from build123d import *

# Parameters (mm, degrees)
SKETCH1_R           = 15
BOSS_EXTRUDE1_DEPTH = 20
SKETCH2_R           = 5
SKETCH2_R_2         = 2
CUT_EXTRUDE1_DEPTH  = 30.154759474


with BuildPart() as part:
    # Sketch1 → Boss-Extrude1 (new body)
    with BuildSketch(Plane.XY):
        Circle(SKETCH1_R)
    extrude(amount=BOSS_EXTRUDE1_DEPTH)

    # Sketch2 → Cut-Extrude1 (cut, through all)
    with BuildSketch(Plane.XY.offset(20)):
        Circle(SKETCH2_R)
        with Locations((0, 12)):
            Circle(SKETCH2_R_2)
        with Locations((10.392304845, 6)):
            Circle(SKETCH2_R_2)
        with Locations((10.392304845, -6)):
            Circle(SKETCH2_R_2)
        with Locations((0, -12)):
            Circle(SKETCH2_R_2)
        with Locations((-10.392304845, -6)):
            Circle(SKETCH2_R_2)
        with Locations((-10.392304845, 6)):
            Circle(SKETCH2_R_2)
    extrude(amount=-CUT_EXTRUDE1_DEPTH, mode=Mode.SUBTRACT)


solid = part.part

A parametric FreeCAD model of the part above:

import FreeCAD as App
import Part
import Sketcher

V = App.Vector

doc = App.newDocument("Part")
body = doc.addObject("PartDesign::Body", "Body")

# Sketch on XY plane
sketch1 = body.newObject("Sketcher::SketchObject", "Sketch")
sketch1.AttachmentSupport = (doc.getObject("XY_Plane"), [""])
sketch1.MapMode = "FlatFace"
sketch1.addGeometry(Part.Circle(V(0, 0, 0), V(0, 0, 1), 15), False)
sketch1.addConstraint([
    Sketcher.Constraint("Coincident", 0, 3, -1, 1),
    Sketcher.Constraint("Diameter", 0, 30.0),
])
pad1 = body.newObject("PartDesign::Pad", "Pad")
pad1.Profile = sketch1
pad1.Length = 20

# Sketch on XY plane
sketch2 = body.newObject("Sketcher::SketchObject", "Sketch001")
sketch2.AttachmentSupport = (doc.getObject("XY_Plane"), [""])
sketch2.MapMode = "FlatFace"
sketch2.AttachmentOffset = App.Placement(V(0, 0, 20), App.Rotation())
sketch2.addGeometry([
    Part.Circle(V(0, 0, 0), V(0, 0, 1), 5),  # 0
    Part.Circle(V(0, 12, 0), V(0, 0, 1), 2),  # 1
    Part.Circle(V(10.392305, 6, 0), V(0, 0, 1), 2),  # 2
    Part.Circle(V(10.392305, -6, 0), V(0, 0, 1), 2),  # 3
    Part.Circle(V(0, -12, 0), V(0, 0, 1), 2),  # 4
    Part.Circle(V(-10.392305, -6, 0), V(0, 0, 1), 2),  # 5
    Part.Circle(V(-10.392305, 6, 0), V(0, 0, 1), 2),  # 6
], False)
sketch2.addConstraint([
    Sketcher.Constraint("Coincident", 0, 3, -1, 1),
    Sketcher.Constraint("Equal", 1, 2),
    Sketcher.Constraint("Equal", 2, 3),
    Sketcher.Constraint("Equal", 3, 4),
    Sketcher.Constraint("Equal", 4, 5),
    Sketcher.Constraint("Equal", 5, 6),
    Sketcher.Constraint("Symmetric", 1, 3, 4, 3, -1, 1),
    Sketcher.Constraint("Symmetric", 2, 3, 5, 3, -1, 1),
    Sketcher.Constraint("Symmetric", 3, 3, 6, 3, -1, 1),
    Sketcher.Constraint("Symmetric", 3, 3, 5, 3, -2),
    Sketcher.Constraint("PointOnObject", 1, 3, -2),
    Sketcher.Constraint("Diameter", 0, 10.0),
    Sketcher.Constraint("Diameter", 1, 4.0),
    Sketcher.Constraint("DistanceY", -1, 1, 1, 3, 12.0),
    Sketcher.Constraint("DistanceY", -1, 1, 2, 3, 6.0),
    Sketcher.Constraint("DistanceX", 5, 3, 3, 3, 20.78461),
])
pocket1 = body.newObject("PartDesign::Pocket", "Pocket")
pocket1.Profile = sketch2
pocket1.Type = "ThroughAll"

doc.recompute()
